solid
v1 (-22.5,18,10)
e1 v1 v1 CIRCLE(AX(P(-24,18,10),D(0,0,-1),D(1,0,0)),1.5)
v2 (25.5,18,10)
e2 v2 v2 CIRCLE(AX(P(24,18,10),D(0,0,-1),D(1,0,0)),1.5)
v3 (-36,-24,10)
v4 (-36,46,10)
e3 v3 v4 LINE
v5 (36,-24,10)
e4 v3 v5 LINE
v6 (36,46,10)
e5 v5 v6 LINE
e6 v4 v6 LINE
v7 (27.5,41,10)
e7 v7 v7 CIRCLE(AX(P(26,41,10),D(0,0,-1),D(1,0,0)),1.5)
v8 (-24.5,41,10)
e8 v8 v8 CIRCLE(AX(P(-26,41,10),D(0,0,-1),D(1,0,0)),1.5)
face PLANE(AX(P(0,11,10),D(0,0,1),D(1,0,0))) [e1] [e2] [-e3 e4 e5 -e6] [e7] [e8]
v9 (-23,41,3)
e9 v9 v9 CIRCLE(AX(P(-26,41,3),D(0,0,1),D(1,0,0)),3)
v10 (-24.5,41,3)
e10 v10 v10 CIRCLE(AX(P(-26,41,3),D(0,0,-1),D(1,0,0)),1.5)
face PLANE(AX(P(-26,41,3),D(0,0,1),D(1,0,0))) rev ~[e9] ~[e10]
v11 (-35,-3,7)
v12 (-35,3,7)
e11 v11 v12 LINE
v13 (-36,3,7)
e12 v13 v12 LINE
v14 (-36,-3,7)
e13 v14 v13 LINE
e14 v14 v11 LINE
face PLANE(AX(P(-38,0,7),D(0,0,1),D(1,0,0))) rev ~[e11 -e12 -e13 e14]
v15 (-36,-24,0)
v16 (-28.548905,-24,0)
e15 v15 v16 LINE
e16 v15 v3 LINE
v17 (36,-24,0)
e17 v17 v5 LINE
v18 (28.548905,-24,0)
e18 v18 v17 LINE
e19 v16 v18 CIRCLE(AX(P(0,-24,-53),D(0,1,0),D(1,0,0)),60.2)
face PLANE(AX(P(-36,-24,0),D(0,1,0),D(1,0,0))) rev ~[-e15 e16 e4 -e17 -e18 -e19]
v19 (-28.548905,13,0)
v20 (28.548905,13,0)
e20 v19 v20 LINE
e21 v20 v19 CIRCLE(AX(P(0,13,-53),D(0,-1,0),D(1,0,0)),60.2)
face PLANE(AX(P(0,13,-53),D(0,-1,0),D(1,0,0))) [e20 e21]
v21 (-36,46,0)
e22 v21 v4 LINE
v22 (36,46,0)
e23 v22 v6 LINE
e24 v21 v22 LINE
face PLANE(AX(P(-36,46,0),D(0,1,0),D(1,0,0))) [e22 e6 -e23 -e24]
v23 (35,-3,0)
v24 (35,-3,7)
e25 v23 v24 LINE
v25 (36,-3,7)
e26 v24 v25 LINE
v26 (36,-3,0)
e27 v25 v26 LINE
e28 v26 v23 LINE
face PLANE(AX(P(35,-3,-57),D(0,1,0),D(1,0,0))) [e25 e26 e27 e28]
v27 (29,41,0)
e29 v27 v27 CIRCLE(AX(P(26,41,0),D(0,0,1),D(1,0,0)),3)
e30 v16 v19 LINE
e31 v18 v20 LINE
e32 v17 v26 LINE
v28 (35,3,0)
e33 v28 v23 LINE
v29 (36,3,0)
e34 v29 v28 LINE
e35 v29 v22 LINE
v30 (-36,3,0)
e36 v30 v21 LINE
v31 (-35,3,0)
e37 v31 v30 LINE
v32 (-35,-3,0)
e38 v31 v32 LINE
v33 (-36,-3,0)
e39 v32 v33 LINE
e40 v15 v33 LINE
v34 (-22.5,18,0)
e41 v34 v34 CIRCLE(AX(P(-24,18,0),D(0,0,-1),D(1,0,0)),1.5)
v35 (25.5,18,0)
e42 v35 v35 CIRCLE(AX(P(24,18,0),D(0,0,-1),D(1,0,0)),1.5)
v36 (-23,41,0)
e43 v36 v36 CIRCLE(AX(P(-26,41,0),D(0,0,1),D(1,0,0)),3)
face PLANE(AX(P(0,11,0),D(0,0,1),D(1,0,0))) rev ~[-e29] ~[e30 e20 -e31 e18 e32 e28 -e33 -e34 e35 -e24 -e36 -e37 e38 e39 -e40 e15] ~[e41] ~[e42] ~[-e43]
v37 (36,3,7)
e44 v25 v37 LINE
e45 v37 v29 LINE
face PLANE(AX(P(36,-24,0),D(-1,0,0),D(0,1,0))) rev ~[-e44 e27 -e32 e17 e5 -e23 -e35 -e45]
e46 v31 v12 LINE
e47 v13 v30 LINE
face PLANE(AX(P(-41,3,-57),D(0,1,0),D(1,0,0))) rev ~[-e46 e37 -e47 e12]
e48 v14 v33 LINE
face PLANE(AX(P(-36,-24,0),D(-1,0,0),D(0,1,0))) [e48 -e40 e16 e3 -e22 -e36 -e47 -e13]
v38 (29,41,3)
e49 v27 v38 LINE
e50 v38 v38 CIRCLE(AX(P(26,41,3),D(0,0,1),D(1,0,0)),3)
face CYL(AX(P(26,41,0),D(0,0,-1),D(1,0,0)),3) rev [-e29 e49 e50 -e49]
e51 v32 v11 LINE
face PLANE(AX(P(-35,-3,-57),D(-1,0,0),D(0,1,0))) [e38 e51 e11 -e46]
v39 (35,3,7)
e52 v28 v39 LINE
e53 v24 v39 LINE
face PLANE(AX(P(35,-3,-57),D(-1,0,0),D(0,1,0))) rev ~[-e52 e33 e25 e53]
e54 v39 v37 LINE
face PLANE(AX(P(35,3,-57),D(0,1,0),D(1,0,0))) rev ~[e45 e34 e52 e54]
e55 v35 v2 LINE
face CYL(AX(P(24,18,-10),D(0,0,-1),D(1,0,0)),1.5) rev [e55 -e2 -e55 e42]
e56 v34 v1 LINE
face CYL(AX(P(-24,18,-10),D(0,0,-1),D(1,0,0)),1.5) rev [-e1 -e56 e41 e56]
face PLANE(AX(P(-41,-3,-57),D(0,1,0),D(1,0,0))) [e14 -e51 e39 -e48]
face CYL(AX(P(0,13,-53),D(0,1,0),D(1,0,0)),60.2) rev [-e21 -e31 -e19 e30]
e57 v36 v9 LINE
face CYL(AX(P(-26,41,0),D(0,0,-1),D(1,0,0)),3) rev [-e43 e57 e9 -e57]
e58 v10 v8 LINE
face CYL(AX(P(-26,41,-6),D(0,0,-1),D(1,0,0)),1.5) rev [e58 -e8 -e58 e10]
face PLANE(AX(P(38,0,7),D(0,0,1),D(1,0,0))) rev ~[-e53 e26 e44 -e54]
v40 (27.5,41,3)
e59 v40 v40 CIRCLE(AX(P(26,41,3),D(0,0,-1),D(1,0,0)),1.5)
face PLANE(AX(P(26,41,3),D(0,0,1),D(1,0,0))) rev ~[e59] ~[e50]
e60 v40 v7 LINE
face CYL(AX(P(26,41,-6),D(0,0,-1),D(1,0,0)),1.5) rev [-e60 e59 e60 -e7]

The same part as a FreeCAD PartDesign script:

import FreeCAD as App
import Part
import Sketcher
from FreeCAD import Vector
Q = App.Units.Quantity


def add_polygon(sketch, points):
    """Adds a closed chain of lines whose ends are joined by coincident constraints."""
    first, n = sketch.GeometryCount, len(points)
    for a, b in zip(points, points[1:] + points[:1]):
        sketch.addGeometry(Part.LineSegment(App.Vector(*a, 0), App.Vector(*b, 0)), False)
    for i in range(n):
        sketch.addConstraint(Sketcher.Constraint("Coincident", first + i, 2, first + (i + 1) % n, 1))

doc = App.newDocument("Part")
body = doc.addObject("PartDesign::Body", "Body")

sketch1 = body.newObject("Sketcher::SketchObject", "Sketch")
sketch1.AttachmentSupport = (doc.getObject("XY_Plane"), [""])
sketch1.MapMode = "FlatFace"
sketch1.AttachmentOffset = App.Placement(Vector(0, 0, -93), App.Rotation())
add_polygon(sketch1, [(87, 3), (87, -3), (93, -3), (93, 3)])
sketch1.addConstraint(Sketcher.Constraint("Vertical", 0))
sketch1.addConstraint(Sketcher.Constraint("Horizontal", 1))
sketch1.addConstraint(Sketcher.Constraint("Vertical", 2))
sketch1.addConstraint(Sketcher.Constraint("Horizontal", 3))
sketch1.addConstraint(Sketcher.Constraint("Equal", 3, 0))
sketch1.addConstraint(Sketcher.Constraint("DistanceX", 1, 1, 1, 2, Q("6 mm")))
sketch1.addConstraint(Sketcher.Constraint("DistanceX", -1, 1, 0, 2, Q("87 mm")))
sketch1.addConstraint(Sketcher.Constraint("DistanceY", 0, 2, -1, 1, Q("3 mm")))
pad1 = body.newObject("PartDesign::Pad", "Pad")
pad1.Profile = sketch1
pad1.Length = 64
body2 = doc.addObject("PartDesign::Body", "Body001")
body2.AllowCompound = True

sketch2 = body2.newObject("Sketcher::SketchObject", "Sketch001")
sketch2.AttachmentSupport = (doc.getObject("XY_Plane001"), [""])
sketch2.MapMode = "FlatFace"
sketch2.AttachmentOffset = App.Placement(Vector(0, 0, -93), App.Rotation())
add_polygon(sketch2, [(11, 3), (11, -3), (17, -3), (17, 3)])
sketch2.addConstraint(Sketcher.Constraint("Vertical", 0))
sketch2.addConstraint(Sketcher.Constraint("Horizontal", 1))
sketch2.addConstraint(Sketcher.Constraint("Vertical", 2))
sketch2.addConstraint(Sketcher.Constraint("Horizontal", 3))
sketch2.addConstraint(Sketcher.Constraint("Equal", 3, 0))
sketch2.addConstraint(Sketcher.Constraint("DistanceX", 1, 1, 1, 2, Q("6 mm")))
sketch2.addConstraint(Sketcher.Constraint("DistanceX", -1, 1, 0, 2, Q("11 mm")))
sketch2.addConstraint(Sketcher.Constraint("DistanceY", 0, 2, -1, 1, Q("3 mm")))
pad2 = body2.newObject("PartDesign::Pad", "Pad001")
pad2.Profile = sketch2
pad2.Length = 64
doc.recompute()

boolean = body2.newObject("PartDesign::Boolean", "Boolean")
boolean.Type = "Fuse"
boolean.addObjects([body])
body3 = doc.addObject("PartDesign::Body", "Body002")
body3.AllowCompound = True
doc.recompute()

body2.Placement = App.Placement(Vector(-52, 0, 36), App.Rotation(Vector(0, 0, 1), 0))
boolean2 = body3.newObject("PartDesign::Boolean", "Boolean001")
boolean2.Type = "Fuse"
boolean2.addObjects([body2])
body4 = doc.addObject("PartDesign::Body", "Body003")

sketch3 = body4.newObject("Sketcher::SketchObject", "Sketch002")
sketch3.AttachmentSupport = (doc.getObject("XZ_Plane003"), [""])
sketch3.MapMode = "FlatFace"
sketch3.AttachmentOffset = App.Placement(Vector(0, 0, -13), App.Rotation())
sketch3.addGeometry(Part.Circle(Vector(0, -53, 0), Vector(0, 0, 1), 60.2), False)
sketch3.addConstraint(Sketcher.Constraint("PointOnObject", 0, 3, -2))
sketch3.addConstraint(Sketcher.Constraint("Diameter", 0, Q("120.4 mm")))
sketch3.addConstraint(Sketcher.Constraint("DistanceY", 0, 3, -1, 1, Q("53 mm")))
pad3 = body4.newObject("PartDesign::Pad", "Pad002")
pad3.Profile = sketch3
pad3.Length = 52
body5 = doc.addObject("PartDesign::Body", "Body004")

sketch4 = body5.newObject("Sketcher::SketchObject", "Sketch003")
sketch4.AttachmentSupport = (doc.getObject("XY_Plane004"), [""])
sketch4.MapMode = "FlatFace"
sketch4.AttachmentOffset = App.Placement(Vector(0, 0, -42), App.Rotation())
sketch4.addGeometry(Part.Circle(Vector(78, 41, 0), Vector(0, 0, 1), 1.5), False)
sketch4.addConstraint(Sketcher.Constraint("Diameter", 0, Q("3 mm")))
sketch4.addConstraint(Sketcher.Constraint("DistanceX", -1, 1, 0, 3, Q("78 mm")))
sketch4.addConstraint(Sketcher.Constraint("DistanceY", -1, 1, 0, 3, Q("41 mm")))
pad4 = body5.newObject("PartDesign::Pad", "Pad003")
pad4.Profile = sketch4
pad4.Length = 32
body6 = doc.addObject("PartDesign::Body", "Body005")
body6.AllowCompound = True

sketch5 = body6.newObject("Sketcher::SketchObject", "Sketch004")
sketch5.AttachmentSupport = (doc.getObject("XY_Plane005"), [""])
sketch5.MapMode = "FlatFace"
sketch5.AttachmentOffset = App.Placement(Vector(0, 0, -42), App.Rotation())
sketch5.addGeometry(Part.Circle(Vector(26, 41, 0), Vector(0, 0, 1), 1.5), False)
sketch5.addConstraint(Sketcher.Constraint("Diameter", 0, Q("3 mm")))
sketch5.addConstraint(Sketcher.Constraint("DistanceX", -1, 1, 0, 3, Q("26 mm")))
sketch5.addConstraint(Sketcher.Constraint("DistanceY", -1, 1, 0, 3, Q("41 mm")))
pad5 = body6.newObject("PartDesign::Pad", "Pad004")
pad5.Profile = sketch5
pad5.Length = 32
doc.recompute()

boolean3 = body6.newObject("PartDesign::Boolean", "Boolean002")
boolean3.Type = "Fuse"
boolean3.addObjects([body5])
body7 = doc.addObject("PartDesign::Body", "Body006")
body7.AllowCompound = True
doc.recompute()

body6.Placement = App.Placement(Vector(-52, 0, 36), App.Rotation(Vector(0, 0, 1), 0))
boolean4 = body7.newObject("PartDesign::Boolean", "Boolean003")
boolean4.Type = "Fuse"
boolean4.addObjects([body6])
body8 = doc.addObject("PartDesign::Body", "Body007")

sketch6 = body8.newObject("Sketcher::SketchObject", "Sketch005")
sketch6.AttachmentSupport = (doc.getObject("XY_Plane007"), [""])
sketch6.MapMode = "FlatFace"
sketch6.AttachmentOffset = App.Placement(Vector(0, 0, -60), App.Rotation())
sketch6.addGeometry(Part.Circle(Vector(14, 0, 0), Vector(0, 0, 1), 1.5), False)
sketch6.addConstraint(Sketcher.Constraint("PointOnObject", 0, 3, -1))
sketch6.addConstraint(Sketcher.Constraint("Diameter", 0, Q("3 mm")))
sketch6.addConstraint(Sketcher.Constraint("DistanceX", -1, 1, 0, 3, Q("14 mm")))
pad6 = body8.newObject("PartDesign::Pad", "Pad005")
pad6.Profile = sketch6
pad6.Length = 100
body9 = doc.addObject("PartDesign::Body", "Body008")
body9.AllowCompound = True

sketch7 = body9.newObject("Sketcher::SketchObject", "Sketch006")
sketch7.AttachmentSupport = (doc.getObject("XY_Plane008"), [""])
sketch7.MapMode = "FlatFace"
sketch7.AttachmentOffset = App.Placement(Vector(0, 0, -60), App.Rotation())
sketch7.addGeometry(Part.Circle(Vector(90, 0, 0), Vector(0, 0, 1), 1.5), False)
sketch7.addConstraint(Sketcher.Constraint("PointOnObject", 0, 3, -1))
sketch7.addConstraint(Sketcher.Constraint("Diameter", 0, Q("3 mm")))
sketch7.addConstraint(Sketcher.Constraint("DistanceX", -1, 1, 0, 3, Q("90 mm")))
pad7 = body9.newObject("PartDesign::Pad", "Pad006")
pad7.Profile = sketch7
pad7.Length = 100
doc.recompute()

boolean5 = body9.newObject("PartDesign::Boolean", "Boolean004")
boolean5.Type = "Fuse"
boolean5.addObjects([body8])
body10 = doc.addObject("PartDesign::Body", "Body009")
body10.AllowCompound = True
doc.recompute()

body9.Placement = App.Placement(Vector(-52, 0, 0), App.Rotation(Vector(0, 0, 1), 0))
boolean6 = body10.newObject("PartDesign::Boolean", "Boolean005")
boolean6.Type = "Fuse"
boolean6.addObjects([body9])
doc.recompute()

boolean7 = body10.newObject("PartDesign::Boolean", "Boolean006")
boolean7.Type = "Fuse"
boolean7.addObjects([body7])
body11 = doc.addObject("PartDesign::Body", "Body010")

sketch8 = body11.newObject("Sketcher::SketchObject", "Sketch007")
sketch8.AttachmentSupport = (doc.getObject("XY_Plane010"), [""])
sketch8.MapMode = "FlatFace"
sketch8.AttachmentOffset = App.Placement(Vector(0, 0, -42), App.Rotation())
sketch8.addGeometry(Part.Circle(Vector(78, 41, 0), Vector(0, 0, 1), 3), False)
sketch8.addConstraint(Sketcher.Constraint("Diameter", 0, Q("6 mm")))
sketch8.addConstraint(Sketcher.Constraint("DistanceX", -1, 1, 0, 3, Q("78 mm")))
sketch8.addConstraint(Sketcher.Constraint("DistanceY", -1, 1, 0, 3, Q("41 mm")))
pad8 = body11.newObject("PartDesign::Pad", "Pad007")
pad8.Profile = sketch8
pad8.Length = 3
body12 = doc.addObject("PartDesign::Body", "Body011")
body12.AllowCompound = True

sketch9 = body12.newObject("Sketcher::SketchObject", "Sketch008")
sketch9.AttachmentSupport = (doc.getObject("XY_Plane011"), [""])
sketch9.MapMode = "FlatFace"
sketch9.AttachmentOffset = App.Placement(Vector(0, 0, -42), App.Rotation())
sketch9.addGeometry(Part.Circle(Vector(26, 41, 0), Vector(0, 0, 1), 3), False)
sketch9.addConstraint(Sketcher.Constraint("Diameter", 0, Q("6 mm")))
sketch9.addConstraint(Sketcher.Constraint("DistanceX", -1, 1, 0, 3, Q("26 mm")))
sketch9.addConstraint(Sketcher.Constraint("DistanceY", -1, 1, 0, 3, Q("41 mm")))
pad9 = body12.newObject("PartDesign::Pad", "Pad008")
pad9.Profile = sketch9
pad9.Length = 3
doc.recompute()

boolean8 = body12.newObject("PartDesign::Boolean", "Boolean007")
boolean8.Type = "Fuse"
boolean8.addObjects([body11])
body13 = doc.addObject("PartDesign::Body", "Body012")
body13.AllowCompound = True
doc.recompute()

body12.Placement = App.Placement(Vector(-52, 0, 42), App.Rotation(Vector(0, 0, 1), 0))
boolean9 = body13.newObject("PartDesign::Boolean", "Boolean008")
boolean9.Type = "Fuse"
boolean9.addObjects([body12])
body14 = doc.addObject("PartDesign::Body", "Body013")

sketch10 = body14.newObject("Sketcher::SketchObject", "Sketch009")
sketch10.AttachmentSupport = (doc.getObject("XY_Plane013"), [""])
sketch10.MapMode = "FlatFace"
sketch10.addGeometry(Part.Circle(Vector(-51, 6, 0), Vector(0, 0, 1), 1.5), False)
sketch10.addConstraint(Sketcher.Constraint("Diameter", 0, Q("3 mm")))
sketch10.addConstraint(Sketcher.Constraint("DistanceX", 0, 3, -1, 1, Q("51 mm")))
sketch10.addConstraint(Sketcher.Constraint("DistanceY", -1, 1, 0, 3, Q("6 mm")))
pad10 = body14.newObject("PartDesign::Pad", "Pad009")
pad10.Profile = sketch10
pad10.Length = 50
body15 = doc.addObject("PartDesign::Body", "Body014")

sketch11 = body15.newObject("Sketcher::SketchObject", "Sketch010")
sketch11.AttachmentSupport = (doc.getObject("XY_Plane014"), [""])
sketch11.MapMode = "FlatFace"
sketch11.addGeometry(Part.Circle(Vector(-24, 18, 0), Vector(0, 0, 1), 1.5), False)
sketch11.addConstraint(Sketcher.Constraint("Diameter", 0, Q("3 mm")))
sketch11.addConstraint(Sketcher.Constraint("DistanceX", 0, 3, -1, 1, Q("24 mm")))
sketch11.addConstraint(Sketcher.Constraint("DistanceY", -1, 1, 0, 3, Q("18 mm")))
pad11 = body15.newObject("PartDesign::Pad", "Pad010")
pad11.Profile = sketch11
pad11.Length = 50
body16 = doc.addObject("PartDesign::Body", "Body015")

sketch12 = body16.newObject("Sketcher::SketchObject", "Sketch011")
sketch12.AttachmentSupport = (doc.getObject("XY_Plane015"), [""])
sketch12.MapMode = "FlatFace"
sketch12.addGeometry(Part.Circle(Vector(24, 18, 0), Vector(0, 0, 1), 1.5), False)
sketch12.addConstraint(Sketcher.Constraint("Diameter", 0, Q("3 mm")))
sketch12.addConstraint(Sketcher.Constraint("DistanceX", -1, 1, 0, 3, Q("24 mm")))
sketch12.addConstraint(Sketcher.Constraint("DistanceY", -1, 1, 0, 3, Q("18 mm")))
pad12 = body16.newObject("PartDesign::Pad", "Pad011")
pad12.Profile = sketch12
pad12.Length = 50
body17 = doc.addObject("PartDesign::Body", "Body016")
body17.AllowCompound = True

sketch13 = body17.newObject("Sketcher::SketchObject", "Sketch012")
sketch13.AttachmentSupport = (doc.getObject("XY_Plane016"), [""])
sketch13.MapMode = "FlatFace"
sketch13.addGeometry(Part.Circle(Vector(51, 6, 0), Vector(0, 0, 1), 1.5), False)
sketch13.addConstraint(Sketcher.Constraint("Diameter", 0, Q("3 mm")))
sketch13.addConstraint(Sketcher.Constraint("DistanceX", -1, 1, 0, 3, Q("51 mm")))
sketch13.addConstraint(Sketcher.Constraint("DistanceY", -1, 1, 0, 3, Q("6 mm")))
pad13 = body17.newObject("PartDesign::Pad", "Pad012")
pad13.Profile = sketch13
pad13.Length = 50
doc.recompute()

boolean10 = body17.newObject("PartDesign::Boolean", "Boolean009")
boolean10.Type = "Fuse"
boolean10.addObjects([body14])
doc.recompute()

boolean11 = body17.newObject("PartDesign::Boolean", "Boolean010")
boolean11.Type = "Fuse"
boolean11.addObjects([body15])
doc.recompute()

boolean12 = body17.newObject("PartDesign::Boolean", "Boolean011")
boolean12.Type = "Fuse"
boolean12.addObjects([body16])
body18 = doc.addObject("PartDesign::Body", "Body017")

sketch14 = body18.newObject("Sketcher::SketchObject", "Sketch013")
sketch14.AttachmentSupport = (doc.getObject("XY_Plane017"), [""])
sketch14.MapMode = "FlatFace"
sketch14.addGeometry(Part.Circle(Vector(51, -12, 0), Vector(0, 0, 1), 1.5), False)
sketch14.addConstraint(Sketcher.Constraint("Diameter", 0, Q("3 mm")))
sketch14.addConstraint(Sketcher.Constraint("DistanceX", -1, 1, 0, 3, Q("51 mm")))
sketch14.addConstraint(Sketcher.Constraint("DistanceY", 0, 3, -1, 1, Q("12 mm")))
pad14 = body18.newObject("PartDesign::Pad", "Pad013")
pad14.Profile = sketch14
pad14.Length = 100
body19 = doc.addObject("PartDesign::Body", "Body018")
body19.AllowCompound = True

sketch15 = body19.newObject("Sketcher::SketchObject", "Sketch014")
sketch15.AttachmentSupport = (doc.getObject("XY_Plane018"), [""])
sketch15.MapMode = "FlatFace"
sketch15.addGeometry(Part.Circle(Vector(-51, -12, 0), Vector(0, 0, 1), 1.5), False)
sketch15.addConstraint(Sketcher.Constraint("Diameter", 0, Q("3 mm")))
sketch15.addConstraint(Sketcher.Constraint("DistanceX", 0, 3, -1, 1, Q("51 mm")))
sketch15.addConstraint(Sketcher.Constraint("DistanceY", 0, 3, -1, 1, Q("12 mm")))
pad15 = body19.newObject("PartDesign::Pad", "Pad014")
pad15.Profile = sketch15
pad15.Length = 100
doc.recompute()

boolean13 = body19.newObject("PartDesign::Boolean", "Boolean012")
boolean13.Type = "Fuse"
boolean13.addObjects([body18])
body20 = doc.addObject("PartDesign::Body", "Body019")

sketch16 = body20.newObject("Sketcher::SketchObject", "Sketch015")
sketch16.AttachmentSupport = (doc.getObject("XY_Plane019"), [""])
sketch16.MapMode = "FlatFace"
sketch16.addGeometry(Part.Circle(Vector(39, -21, 0), Vector(0, 0, 1), 1.5), False)
sketch16.addConstraint(Sketcher.Constraint("Diameter", 0, Q("3 mm")))
sketch16.addConstraint(Sketcher.Constraint("DistanceX", -1, 1, 0, 3, Q("39 mm")))
sketch16.addConstraint(Sketcher.Constraint("DistanceY", 0, 3, -1, 1, Q("21 mm")))
pad16 = body20.newObject("PartDesign::Pad", "Pad015")
pad16.Profile = sketch16
pad16.Length = 100
body21 = doc.addObject("PartDesign::Body", "Body020")
body21.AllowCompound = True

sketch17 = body21.newObject("Sketcher::SketchObject", "Sketch016")
sketch17.AttachmentSupport = (doc.getObject("XY_Plane020"), [""])
sketch17.MapMode = "FlatFace"
sketch17.addGeometry(Part.Circle(Vector(-39, -21, 0), Vector(0, 0, 1), 1.5), False)
sketch17.addConstraint(Sketcher.Constraint("Diameter", 0, Q("3 mm")))
sketch17.addConstraint(Sketcher.Constraint("DistanceX", 0, 3, -1, 1, Q("39 mm")))
sketch17.addConstraint(Sketcher.Constraint("DistanceY", 0, 3, -1, 1, Q("21 mm")))
pad17 = body21.newObject("PartDesign::Pad", "Pad016")
pad17.Profile = sketch17
pad17.Length = 100
doc.recompute()

boolean14 = body21.newObject("PartDesign::Boolean", "Boolean013")
boolean14.Type = "Fuse"
boolean14.addObjects([body20])
doc.recompute()

boolean15 = body21.newObject("PartDesign::Boolean", "Boolean014")
boolean15.Type = "Fuse"
boolean15.addObjects([body17])
doc.recompute()

boolean16 = body21.newObject("PartDesign::Boolean", "Boolean015")
boolean16.Type = "Fuse"
boolean16.addObjects([body19])
body22 = doc.addObject("PartDesign::Body", "Body021")
body22.AllowCompound = True
doc.recompute()

body21.Placement = App.Placement(Vector(0, 0, -10), App.Rotation(Vector(0, 0, 1), 0))
boolean17 = body22.newObject("PartDesign::Boolean", "Boolean016")
boolean17.Type = "Fuse"
boolean17.addObjects([body21])
body23 = doc.addObject("PartDesign::Body", "Body022")

sketch18 = body23.newObject("Sketcher::SketchObject", "Sketch017")
sketch18.AttachmentSupport = (doc.getObject("XY_Plane022"), [""])
sketch18.MapMode = "FlatFace"
add_polygon(sketch18, [(-36, 46), (-36, -24), (36, -24), (36, 46)])
sketch18.addConstraint(Sketcher.Constraint("Vertical", 0))
sketch18.addConstraint(Sketcher.Constraint("Horizontal", 1))
sketch18.addConstraint(Sketcher.Constraint("Vertical", 2))
sketch18.addConstraint(Sketcher.Constraint("Horizontal", 3))
sketch18.addConstraint(Sketcher.Constraint("DistanceX", 1, 1, 1, 2, Q("72 mm")))
sketch18.addConstraint(Sketcher.Constraint("DistanceY", 0, 2, 0, 1, Q("70 mm")))
sketch18.addConstraint(Sketcher.Constraint("DistanceX", 0, 2, -1, 1, Q("36 mm")))
sketch18.addConstraint(Sketcher.Constraint("DistanceY", 0, 2, -1, 1, Q("24 mm")))
pad18 = body23.newObject("PartDesign::Pad", "Pad017")
pad18.Profile = sketch18
pad18.Length = 10
doc.recompute()

boolean18 = body23.newObject("PartDesign::Boolean", "Boolean017")
boolean18.Type = "Cut"
boolean18.addObjects([body22])
doc.recompute()

boolean19 = body23.newObject("PartDesign::Boolean", "Boolean018")
boolean19.Type = "Cut"
boolean19.addObjects([body13])
doc.recompute()

boolean20 = body23.newObject("PartDesign::Boolean", "Boolean019")
boolean20.Type = "Cut"
boolean20.addObjects([body10])
doc.recompute()

boolean21 = body23.newObject("PartDesign::Boolean", "Boolean020")
boolean21.Type = "Cut"
boolean21.addObjects([body4])
doc.recompute()

boolean22 = body23.newObject("PartDesign::Boolean", "Boolean021")
boolean22.Type = "Cut"
boolean22.addObjects([body3])

doc.recompute()
